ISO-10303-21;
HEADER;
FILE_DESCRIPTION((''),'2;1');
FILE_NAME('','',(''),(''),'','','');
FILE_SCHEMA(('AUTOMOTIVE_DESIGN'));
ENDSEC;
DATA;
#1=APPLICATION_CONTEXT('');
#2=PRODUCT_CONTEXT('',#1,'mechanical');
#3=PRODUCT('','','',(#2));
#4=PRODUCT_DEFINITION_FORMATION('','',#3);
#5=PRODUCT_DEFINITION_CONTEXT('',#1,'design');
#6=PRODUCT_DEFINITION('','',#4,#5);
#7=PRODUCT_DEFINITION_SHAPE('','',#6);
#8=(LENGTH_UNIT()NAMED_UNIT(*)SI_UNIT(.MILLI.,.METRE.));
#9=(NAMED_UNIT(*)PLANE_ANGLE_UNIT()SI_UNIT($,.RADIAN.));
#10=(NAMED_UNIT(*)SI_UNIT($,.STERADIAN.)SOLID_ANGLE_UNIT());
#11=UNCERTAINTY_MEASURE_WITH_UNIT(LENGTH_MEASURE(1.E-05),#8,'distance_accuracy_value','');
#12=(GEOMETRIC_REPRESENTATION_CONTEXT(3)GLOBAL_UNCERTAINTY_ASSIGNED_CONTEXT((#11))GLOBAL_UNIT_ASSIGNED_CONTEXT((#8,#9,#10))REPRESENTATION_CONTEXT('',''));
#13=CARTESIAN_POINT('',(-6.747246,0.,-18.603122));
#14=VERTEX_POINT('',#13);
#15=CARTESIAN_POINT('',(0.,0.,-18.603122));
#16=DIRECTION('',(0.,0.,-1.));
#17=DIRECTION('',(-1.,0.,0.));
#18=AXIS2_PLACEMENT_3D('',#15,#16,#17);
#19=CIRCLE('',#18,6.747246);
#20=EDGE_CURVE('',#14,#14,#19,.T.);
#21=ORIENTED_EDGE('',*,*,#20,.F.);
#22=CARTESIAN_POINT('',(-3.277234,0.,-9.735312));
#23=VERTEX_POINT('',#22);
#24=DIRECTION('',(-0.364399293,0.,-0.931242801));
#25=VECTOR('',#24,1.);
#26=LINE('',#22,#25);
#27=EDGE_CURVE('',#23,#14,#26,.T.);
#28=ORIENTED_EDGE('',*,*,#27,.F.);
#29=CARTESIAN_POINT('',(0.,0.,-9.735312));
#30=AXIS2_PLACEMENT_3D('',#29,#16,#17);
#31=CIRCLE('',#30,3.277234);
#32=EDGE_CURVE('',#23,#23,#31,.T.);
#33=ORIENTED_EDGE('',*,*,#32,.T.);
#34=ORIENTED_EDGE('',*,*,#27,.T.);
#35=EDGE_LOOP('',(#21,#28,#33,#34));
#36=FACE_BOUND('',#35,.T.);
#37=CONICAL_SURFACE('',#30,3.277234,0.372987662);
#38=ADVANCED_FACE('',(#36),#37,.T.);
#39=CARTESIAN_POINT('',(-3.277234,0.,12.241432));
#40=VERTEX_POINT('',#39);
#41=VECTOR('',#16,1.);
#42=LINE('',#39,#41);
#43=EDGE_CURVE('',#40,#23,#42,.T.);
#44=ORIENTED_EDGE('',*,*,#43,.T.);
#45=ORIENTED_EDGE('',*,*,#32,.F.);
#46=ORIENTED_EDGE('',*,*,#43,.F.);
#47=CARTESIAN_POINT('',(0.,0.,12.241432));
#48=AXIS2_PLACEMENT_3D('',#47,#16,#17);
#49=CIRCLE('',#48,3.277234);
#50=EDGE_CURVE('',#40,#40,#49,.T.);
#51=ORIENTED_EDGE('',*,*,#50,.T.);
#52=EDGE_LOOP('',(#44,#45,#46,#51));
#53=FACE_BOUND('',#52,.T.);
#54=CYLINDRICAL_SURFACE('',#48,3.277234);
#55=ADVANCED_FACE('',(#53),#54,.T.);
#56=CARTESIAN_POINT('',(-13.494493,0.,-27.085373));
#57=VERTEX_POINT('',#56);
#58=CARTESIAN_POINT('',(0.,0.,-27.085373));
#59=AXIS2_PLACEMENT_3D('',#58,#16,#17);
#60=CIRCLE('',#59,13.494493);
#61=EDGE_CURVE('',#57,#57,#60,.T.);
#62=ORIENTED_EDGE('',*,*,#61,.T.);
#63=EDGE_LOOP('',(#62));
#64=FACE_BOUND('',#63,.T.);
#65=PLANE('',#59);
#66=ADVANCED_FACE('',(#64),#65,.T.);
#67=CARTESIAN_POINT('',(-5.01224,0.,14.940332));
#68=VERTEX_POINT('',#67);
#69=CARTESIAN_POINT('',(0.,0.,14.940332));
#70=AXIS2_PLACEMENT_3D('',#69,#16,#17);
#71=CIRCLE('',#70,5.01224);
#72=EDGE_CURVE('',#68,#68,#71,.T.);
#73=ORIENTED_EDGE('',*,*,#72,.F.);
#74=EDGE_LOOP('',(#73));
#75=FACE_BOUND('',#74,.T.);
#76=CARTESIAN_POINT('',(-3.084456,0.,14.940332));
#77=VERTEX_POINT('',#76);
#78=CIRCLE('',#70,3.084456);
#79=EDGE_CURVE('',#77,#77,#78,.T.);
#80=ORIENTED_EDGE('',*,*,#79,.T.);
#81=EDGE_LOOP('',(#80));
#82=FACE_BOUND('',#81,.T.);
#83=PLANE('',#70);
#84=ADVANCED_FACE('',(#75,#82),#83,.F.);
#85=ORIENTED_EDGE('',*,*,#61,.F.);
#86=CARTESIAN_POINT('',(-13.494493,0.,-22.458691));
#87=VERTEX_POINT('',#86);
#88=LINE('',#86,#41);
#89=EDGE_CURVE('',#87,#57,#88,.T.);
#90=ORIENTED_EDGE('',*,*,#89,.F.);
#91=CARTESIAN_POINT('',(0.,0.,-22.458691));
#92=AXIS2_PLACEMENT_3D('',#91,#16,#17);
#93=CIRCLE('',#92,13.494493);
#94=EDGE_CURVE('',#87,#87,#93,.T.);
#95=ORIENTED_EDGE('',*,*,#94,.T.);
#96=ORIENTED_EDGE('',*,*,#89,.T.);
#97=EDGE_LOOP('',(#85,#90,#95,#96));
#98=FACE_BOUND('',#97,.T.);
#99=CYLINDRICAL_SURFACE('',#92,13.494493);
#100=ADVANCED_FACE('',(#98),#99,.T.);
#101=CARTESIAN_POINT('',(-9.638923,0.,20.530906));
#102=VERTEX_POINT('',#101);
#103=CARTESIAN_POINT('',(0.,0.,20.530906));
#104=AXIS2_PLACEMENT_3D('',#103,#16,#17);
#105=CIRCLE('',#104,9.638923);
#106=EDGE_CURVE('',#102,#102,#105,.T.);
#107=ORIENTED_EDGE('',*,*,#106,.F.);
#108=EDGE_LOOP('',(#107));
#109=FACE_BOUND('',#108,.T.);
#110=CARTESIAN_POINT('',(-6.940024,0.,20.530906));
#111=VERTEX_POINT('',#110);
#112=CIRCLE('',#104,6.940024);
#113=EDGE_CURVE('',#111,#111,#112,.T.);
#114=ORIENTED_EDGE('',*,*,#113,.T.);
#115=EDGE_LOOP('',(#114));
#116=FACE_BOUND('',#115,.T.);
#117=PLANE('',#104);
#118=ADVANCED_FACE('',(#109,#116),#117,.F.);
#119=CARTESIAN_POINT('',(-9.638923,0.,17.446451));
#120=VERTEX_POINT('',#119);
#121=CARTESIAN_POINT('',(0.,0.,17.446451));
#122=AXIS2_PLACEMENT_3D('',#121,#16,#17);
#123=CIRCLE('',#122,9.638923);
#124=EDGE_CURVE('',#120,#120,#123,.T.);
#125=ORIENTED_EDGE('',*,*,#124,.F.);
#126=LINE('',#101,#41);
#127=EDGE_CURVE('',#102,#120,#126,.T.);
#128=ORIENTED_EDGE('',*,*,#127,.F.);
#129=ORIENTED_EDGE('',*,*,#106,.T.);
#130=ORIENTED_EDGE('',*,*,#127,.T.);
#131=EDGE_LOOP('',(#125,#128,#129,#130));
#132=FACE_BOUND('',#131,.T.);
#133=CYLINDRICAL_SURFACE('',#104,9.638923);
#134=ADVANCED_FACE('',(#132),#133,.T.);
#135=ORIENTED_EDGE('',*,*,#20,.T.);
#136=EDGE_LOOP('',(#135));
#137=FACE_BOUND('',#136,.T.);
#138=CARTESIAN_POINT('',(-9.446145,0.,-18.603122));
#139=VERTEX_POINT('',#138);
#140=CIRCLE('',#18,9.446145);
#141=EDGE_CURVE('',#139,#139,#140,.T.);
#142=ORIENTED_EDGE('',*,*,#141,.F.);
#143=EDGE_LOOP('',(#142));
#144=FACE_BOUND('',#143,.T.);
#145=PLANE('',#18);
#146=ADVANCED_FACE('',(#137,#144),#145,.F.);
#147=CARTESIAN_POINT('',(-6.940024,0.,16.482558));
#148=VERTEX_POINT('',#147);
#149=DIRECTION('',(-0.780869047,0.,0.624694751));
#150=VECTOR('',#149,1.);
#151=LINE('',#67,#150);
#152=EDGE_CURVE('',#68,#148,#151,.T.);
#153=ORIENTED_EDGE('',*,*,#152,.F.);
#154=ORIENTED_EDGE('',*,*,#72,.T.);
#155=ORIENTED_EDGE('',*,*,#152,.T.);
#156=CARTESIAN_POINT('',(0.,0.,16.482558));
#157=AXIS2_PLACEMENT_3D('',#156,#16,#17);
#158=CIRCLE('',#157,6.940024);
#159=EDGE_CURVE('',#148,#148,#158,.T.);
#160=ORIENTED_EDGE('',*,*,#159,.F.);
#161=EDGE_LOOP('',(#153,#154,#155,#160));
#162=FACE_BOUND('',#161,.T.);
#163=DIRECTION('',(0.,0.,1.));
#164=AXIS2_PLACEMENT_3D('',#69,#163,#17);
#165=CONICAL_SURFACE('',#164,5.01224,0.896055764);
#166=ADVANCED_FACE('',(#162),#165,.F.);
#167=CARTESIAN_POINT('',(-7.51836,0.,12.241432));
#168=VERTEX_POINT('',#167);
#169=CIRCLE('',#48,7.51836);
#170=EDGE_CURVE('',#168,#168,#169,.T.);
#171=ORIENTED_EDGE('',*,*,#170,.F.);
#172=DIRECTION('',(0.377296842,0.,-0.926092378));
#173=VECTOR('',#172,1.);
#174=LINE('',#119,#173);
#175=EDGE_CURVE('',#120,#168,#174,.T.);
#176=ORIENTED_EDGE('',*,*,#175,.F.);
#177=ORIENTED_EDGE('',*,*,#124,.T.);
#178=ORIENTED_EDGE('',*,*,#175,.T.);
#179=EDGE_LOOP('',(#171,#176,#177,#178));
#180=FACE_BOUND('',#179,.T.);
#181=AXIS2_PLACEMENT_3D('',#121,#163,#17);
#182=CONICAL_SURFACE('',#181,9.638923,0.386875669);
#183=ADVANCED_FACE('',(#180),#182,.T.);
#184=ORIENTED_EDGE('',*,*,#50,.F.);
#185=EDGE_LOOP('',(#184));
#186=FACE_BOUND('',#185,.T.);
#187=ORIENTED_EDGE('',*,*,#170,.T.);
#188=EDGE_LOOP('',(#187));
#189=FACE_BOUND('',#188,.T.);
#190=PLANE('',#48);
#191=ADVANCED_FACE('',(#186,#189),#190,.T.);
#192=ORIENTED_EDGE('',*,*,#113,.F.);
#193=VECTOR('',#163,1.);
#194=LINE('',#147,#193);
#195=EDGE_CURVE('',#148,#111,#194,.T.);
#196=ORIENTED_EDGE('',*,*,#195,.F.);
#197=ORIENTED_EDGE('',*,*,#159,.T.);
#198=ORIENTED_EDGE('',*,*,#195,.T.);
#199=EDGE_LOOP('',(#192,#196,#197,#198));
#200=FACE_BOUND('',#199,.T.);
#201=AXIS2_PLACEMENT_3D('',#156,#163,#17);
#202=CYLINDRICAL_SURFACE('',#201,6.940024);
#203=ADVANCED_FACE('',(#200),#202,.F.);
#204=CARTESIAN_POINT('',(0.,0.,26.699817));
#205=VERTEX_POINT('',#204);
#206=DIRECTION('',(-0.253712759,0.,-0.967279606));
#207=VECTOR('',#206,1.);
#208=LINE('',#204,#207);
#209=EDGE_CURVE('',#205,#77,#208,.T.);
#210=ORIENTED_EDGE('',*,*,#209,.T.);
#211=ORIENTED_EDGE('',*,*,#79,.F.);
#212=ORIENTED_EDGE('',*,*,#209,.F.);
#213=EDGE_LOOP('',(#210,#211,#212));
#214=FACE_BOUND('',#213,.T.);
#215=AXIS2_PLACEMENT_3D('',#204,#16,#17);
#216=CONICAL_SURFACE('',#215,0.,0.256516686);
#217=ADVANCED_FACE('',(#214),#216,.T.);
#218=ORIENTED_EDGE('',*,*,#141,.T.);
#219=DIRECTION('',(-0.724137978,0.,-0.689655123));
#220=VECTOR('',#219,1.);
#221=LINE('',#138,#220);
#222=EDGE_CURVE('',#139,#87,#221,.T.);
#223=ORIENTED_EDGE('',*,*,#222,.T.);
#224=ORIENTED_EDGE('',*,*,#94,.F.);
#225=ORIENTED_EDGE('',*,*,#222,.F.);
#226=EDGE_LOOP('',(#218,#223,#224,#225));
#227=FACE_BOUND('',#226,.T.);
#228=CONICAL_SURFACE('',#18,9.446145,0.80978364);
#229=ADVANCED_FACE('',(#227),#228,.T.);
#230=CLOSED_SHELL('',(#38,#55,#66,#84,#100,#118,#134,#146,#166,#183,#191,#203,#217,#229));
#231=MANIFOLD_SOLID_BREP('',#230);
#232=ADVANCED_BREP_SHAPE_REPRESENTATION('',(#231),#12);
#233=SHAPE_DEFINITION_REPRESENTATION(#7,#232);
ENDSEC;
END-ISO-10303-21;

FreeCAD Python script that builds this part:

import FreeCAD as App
import Part
import Sketcher
from FreeCAD import Vector

doc = App.newDocument("Part")
body = doc.addObject("PartDesign::Body", "Body")

# Sketch on XZ plane
sketch1 = doc.addObject("Sketcher::SketchObject", "Sketch")
body.addObject(sketch1)
sketch1.AttachmentSupport = (doc.XZ_Plane, [""])
sketch1.MapMode = "FlatFace"
sketch1.addGeometry([
    Part.LineSegment(Vector(-13.5, -27.1, 0), Vector(0, -27.1, 0)),  # 0
    Part.LineSegment(Vector(0, -27.1, 0), Vector(0, 26.7, 0)),  # 1
    Part.LineSegment(Vector(0, 26.7, 0), Vector(-3.1, 14.9, 0)),  # 2
    Part.LineSegment(Vector(-3.1, 14.9, 0), Vector(-5, 14.9, 0)),  # 3
    Part.LineSegment(Vector(-5, 14.9, 0), Vector(-6.9, 16.5, 0)),  # 4
    Part.LineSegment(Vector(-6.9, 16.5, 0), Vector(-6.9, 20.5, 0)),  # 5
    Part.LineSegment(Vector(-6.9, 20.5, 0), Vector(-9.6, 20.5, 0)),  # 6
    Part.LineSegment(Vector(-9.6, 20.5, 0), Vector(-9.6, 17.4, 0)),  # 7
    Part.LineSegment(Vector(-9.6, 17.4, 0), Vector(-7.5, 12.2, 0)),  # 8
    Part.LineSegment(Vector(-7.5, 12.2, 0), Vector(-3.3, 12.2, 0)),  # 9
    Part.LineSegment(Vector(-3.3, 12.2, 0), Vector(-3.3, -9.7, 0)),  # 10
    Part.LineSegment(Vector(-3.3, -9.7, 0), Vector(-6.7, -18.6, 0)),  # 11
    Part.LineSegment(Vector(-6.7, -18.6, 0), Vector(-9.4, -18.6, 0)),  # 12
    Part.LineSegment(Vector(-9.4, -18.6, 0), Vector(-13.5, -22.5, 0)),  # 13
    Part.LineSegment(Vector(-13.5, -22.5, 0), Vector(-13.5, -27.1, 0)),  # 14
], False)
sketch1.addConstraint([
    Sketcher.Constraint("Coincident", 0, 2, 1, 1),
    Sketcher.Constraint("Coincident", 1, 2, 2, 1),
    Sketcher.Constraint("Coincident", 2, 2, 3, 1),
    Sketcher.Constraint("Coincident", 3, 2, 4, 1),
    Sketcher.Constraint("Coincident", 4, 2, 5, 1),
    Sketcher.Constraint("Coincident", 5, 2, 6, 1),
    Sketcher.Constraint("Coincident", 6, 2, 7, 1),
    Sketcher.Constraint("Coincident", 7, 2, 8, 1),
    Sketcher.Constraint("Coincident", 8, 2, 9, 1),
    Sketcher.Constraint("Coincident", 9, 2, 10, 1),
    Sketcher.Constraint("Coincident", 10, 2, 11, 1),
    Sketcher.Constraint("Coincident", 11, 2, 12, 1),
    Sketcher.Constraint("Coincident", 12, 2, 13, 1),
    Sketcher.Constraint("Coincident", 13, 2, 14, 1),
    Sketcher.Constraint("Coincident", 14, 2, 0, 1),
    Sketcher.Constraint("Horizontal", 0),
    Sketcher.Constraint("Vertical", 1),
    Sketcher.Constraint("Horizontal", 3),
    Sketcher.Constraint("Vertical", 5),
    Sketcher.Constraint("Horizontal", 6),
    Sketcher.Constraint("Vertical", 7),
    Sketcher.Constraint("Horizontal", 9),
    Sketcher.Constraint("Vertical", 10),
    Sketcher.Constraint("Horizontal", 12),
    Sketcher.Constraint("Vertical", 14),
    Sketcher.Constraint("PointOnObject", 0, 2, -2),
    Sketcher.Constraint("Equal", 6, 12),
    Sketcher.Constraint("DistanceX", 6, 2, 6, 1, 2.698899),
    Sketcher.Constraint("DistanceY", 1, 1, 1, 2, 53.78519),
    Sketcher.Constraint("DistanceY", 5, 1, 5, 2, 4.048348),
    Sketcher.Constraint("DistanceY", 14, 2, 14, 1, 4.626682),
    Sketcher.Constraint("DistanceY", 8, 2, 3, 2, 2.6989),
    Sketcher.Constraint("Distance", 8, 5.62041),
    Sketcher.Constraint("DistanceX", 0, 1, 0, 2, 13.494493),
    Sketcher.Constraint("DistanceX", 3, 2, 3, 1, 1.927784),
    Sketcher.Constraint("DistanceX", 9, 1, 9, 2, 4.241126),
    Sketcher.Constraint("DistanceY", 7, 2, 7, 1, 3.084455),
    Sketcher.Constraint("DistanceY", 10, 2, 10, 1, 21.976744),
    Sketcher.Constraint("DistanceX", 3, 2, -1, 1, 5.01224),
    Sketcher.Constraint("DistanceY", -1, 1, 4, 2, 16.482558),
    Sketcher.Constraint("DistanceX", 8, 2, -1, 1, 7.51836),
    Sketcher.Constraint("DistanceY", 11, 2, -1, 1, 18.603122),
    Sketcher.Constraint("DistanceY", 13, 2, -1, 1, 22.458691),
    Sketcher.Constraint("DistanceX", 4, 2, 2, 2, 3.855568),
    Sketcher.Constraint("DistanceX", 11, 2, 10, 2, 3.470012),
])
revolution = doc.addObject("PartDesign::Revolution", "Revolution")
body.addObject(revolution)
revolution.Profile = sketch1
revolution.ReferenceAxis = (sketch1, ["V_Axis"])
revolution.Angle = 360

doc.recompute()
